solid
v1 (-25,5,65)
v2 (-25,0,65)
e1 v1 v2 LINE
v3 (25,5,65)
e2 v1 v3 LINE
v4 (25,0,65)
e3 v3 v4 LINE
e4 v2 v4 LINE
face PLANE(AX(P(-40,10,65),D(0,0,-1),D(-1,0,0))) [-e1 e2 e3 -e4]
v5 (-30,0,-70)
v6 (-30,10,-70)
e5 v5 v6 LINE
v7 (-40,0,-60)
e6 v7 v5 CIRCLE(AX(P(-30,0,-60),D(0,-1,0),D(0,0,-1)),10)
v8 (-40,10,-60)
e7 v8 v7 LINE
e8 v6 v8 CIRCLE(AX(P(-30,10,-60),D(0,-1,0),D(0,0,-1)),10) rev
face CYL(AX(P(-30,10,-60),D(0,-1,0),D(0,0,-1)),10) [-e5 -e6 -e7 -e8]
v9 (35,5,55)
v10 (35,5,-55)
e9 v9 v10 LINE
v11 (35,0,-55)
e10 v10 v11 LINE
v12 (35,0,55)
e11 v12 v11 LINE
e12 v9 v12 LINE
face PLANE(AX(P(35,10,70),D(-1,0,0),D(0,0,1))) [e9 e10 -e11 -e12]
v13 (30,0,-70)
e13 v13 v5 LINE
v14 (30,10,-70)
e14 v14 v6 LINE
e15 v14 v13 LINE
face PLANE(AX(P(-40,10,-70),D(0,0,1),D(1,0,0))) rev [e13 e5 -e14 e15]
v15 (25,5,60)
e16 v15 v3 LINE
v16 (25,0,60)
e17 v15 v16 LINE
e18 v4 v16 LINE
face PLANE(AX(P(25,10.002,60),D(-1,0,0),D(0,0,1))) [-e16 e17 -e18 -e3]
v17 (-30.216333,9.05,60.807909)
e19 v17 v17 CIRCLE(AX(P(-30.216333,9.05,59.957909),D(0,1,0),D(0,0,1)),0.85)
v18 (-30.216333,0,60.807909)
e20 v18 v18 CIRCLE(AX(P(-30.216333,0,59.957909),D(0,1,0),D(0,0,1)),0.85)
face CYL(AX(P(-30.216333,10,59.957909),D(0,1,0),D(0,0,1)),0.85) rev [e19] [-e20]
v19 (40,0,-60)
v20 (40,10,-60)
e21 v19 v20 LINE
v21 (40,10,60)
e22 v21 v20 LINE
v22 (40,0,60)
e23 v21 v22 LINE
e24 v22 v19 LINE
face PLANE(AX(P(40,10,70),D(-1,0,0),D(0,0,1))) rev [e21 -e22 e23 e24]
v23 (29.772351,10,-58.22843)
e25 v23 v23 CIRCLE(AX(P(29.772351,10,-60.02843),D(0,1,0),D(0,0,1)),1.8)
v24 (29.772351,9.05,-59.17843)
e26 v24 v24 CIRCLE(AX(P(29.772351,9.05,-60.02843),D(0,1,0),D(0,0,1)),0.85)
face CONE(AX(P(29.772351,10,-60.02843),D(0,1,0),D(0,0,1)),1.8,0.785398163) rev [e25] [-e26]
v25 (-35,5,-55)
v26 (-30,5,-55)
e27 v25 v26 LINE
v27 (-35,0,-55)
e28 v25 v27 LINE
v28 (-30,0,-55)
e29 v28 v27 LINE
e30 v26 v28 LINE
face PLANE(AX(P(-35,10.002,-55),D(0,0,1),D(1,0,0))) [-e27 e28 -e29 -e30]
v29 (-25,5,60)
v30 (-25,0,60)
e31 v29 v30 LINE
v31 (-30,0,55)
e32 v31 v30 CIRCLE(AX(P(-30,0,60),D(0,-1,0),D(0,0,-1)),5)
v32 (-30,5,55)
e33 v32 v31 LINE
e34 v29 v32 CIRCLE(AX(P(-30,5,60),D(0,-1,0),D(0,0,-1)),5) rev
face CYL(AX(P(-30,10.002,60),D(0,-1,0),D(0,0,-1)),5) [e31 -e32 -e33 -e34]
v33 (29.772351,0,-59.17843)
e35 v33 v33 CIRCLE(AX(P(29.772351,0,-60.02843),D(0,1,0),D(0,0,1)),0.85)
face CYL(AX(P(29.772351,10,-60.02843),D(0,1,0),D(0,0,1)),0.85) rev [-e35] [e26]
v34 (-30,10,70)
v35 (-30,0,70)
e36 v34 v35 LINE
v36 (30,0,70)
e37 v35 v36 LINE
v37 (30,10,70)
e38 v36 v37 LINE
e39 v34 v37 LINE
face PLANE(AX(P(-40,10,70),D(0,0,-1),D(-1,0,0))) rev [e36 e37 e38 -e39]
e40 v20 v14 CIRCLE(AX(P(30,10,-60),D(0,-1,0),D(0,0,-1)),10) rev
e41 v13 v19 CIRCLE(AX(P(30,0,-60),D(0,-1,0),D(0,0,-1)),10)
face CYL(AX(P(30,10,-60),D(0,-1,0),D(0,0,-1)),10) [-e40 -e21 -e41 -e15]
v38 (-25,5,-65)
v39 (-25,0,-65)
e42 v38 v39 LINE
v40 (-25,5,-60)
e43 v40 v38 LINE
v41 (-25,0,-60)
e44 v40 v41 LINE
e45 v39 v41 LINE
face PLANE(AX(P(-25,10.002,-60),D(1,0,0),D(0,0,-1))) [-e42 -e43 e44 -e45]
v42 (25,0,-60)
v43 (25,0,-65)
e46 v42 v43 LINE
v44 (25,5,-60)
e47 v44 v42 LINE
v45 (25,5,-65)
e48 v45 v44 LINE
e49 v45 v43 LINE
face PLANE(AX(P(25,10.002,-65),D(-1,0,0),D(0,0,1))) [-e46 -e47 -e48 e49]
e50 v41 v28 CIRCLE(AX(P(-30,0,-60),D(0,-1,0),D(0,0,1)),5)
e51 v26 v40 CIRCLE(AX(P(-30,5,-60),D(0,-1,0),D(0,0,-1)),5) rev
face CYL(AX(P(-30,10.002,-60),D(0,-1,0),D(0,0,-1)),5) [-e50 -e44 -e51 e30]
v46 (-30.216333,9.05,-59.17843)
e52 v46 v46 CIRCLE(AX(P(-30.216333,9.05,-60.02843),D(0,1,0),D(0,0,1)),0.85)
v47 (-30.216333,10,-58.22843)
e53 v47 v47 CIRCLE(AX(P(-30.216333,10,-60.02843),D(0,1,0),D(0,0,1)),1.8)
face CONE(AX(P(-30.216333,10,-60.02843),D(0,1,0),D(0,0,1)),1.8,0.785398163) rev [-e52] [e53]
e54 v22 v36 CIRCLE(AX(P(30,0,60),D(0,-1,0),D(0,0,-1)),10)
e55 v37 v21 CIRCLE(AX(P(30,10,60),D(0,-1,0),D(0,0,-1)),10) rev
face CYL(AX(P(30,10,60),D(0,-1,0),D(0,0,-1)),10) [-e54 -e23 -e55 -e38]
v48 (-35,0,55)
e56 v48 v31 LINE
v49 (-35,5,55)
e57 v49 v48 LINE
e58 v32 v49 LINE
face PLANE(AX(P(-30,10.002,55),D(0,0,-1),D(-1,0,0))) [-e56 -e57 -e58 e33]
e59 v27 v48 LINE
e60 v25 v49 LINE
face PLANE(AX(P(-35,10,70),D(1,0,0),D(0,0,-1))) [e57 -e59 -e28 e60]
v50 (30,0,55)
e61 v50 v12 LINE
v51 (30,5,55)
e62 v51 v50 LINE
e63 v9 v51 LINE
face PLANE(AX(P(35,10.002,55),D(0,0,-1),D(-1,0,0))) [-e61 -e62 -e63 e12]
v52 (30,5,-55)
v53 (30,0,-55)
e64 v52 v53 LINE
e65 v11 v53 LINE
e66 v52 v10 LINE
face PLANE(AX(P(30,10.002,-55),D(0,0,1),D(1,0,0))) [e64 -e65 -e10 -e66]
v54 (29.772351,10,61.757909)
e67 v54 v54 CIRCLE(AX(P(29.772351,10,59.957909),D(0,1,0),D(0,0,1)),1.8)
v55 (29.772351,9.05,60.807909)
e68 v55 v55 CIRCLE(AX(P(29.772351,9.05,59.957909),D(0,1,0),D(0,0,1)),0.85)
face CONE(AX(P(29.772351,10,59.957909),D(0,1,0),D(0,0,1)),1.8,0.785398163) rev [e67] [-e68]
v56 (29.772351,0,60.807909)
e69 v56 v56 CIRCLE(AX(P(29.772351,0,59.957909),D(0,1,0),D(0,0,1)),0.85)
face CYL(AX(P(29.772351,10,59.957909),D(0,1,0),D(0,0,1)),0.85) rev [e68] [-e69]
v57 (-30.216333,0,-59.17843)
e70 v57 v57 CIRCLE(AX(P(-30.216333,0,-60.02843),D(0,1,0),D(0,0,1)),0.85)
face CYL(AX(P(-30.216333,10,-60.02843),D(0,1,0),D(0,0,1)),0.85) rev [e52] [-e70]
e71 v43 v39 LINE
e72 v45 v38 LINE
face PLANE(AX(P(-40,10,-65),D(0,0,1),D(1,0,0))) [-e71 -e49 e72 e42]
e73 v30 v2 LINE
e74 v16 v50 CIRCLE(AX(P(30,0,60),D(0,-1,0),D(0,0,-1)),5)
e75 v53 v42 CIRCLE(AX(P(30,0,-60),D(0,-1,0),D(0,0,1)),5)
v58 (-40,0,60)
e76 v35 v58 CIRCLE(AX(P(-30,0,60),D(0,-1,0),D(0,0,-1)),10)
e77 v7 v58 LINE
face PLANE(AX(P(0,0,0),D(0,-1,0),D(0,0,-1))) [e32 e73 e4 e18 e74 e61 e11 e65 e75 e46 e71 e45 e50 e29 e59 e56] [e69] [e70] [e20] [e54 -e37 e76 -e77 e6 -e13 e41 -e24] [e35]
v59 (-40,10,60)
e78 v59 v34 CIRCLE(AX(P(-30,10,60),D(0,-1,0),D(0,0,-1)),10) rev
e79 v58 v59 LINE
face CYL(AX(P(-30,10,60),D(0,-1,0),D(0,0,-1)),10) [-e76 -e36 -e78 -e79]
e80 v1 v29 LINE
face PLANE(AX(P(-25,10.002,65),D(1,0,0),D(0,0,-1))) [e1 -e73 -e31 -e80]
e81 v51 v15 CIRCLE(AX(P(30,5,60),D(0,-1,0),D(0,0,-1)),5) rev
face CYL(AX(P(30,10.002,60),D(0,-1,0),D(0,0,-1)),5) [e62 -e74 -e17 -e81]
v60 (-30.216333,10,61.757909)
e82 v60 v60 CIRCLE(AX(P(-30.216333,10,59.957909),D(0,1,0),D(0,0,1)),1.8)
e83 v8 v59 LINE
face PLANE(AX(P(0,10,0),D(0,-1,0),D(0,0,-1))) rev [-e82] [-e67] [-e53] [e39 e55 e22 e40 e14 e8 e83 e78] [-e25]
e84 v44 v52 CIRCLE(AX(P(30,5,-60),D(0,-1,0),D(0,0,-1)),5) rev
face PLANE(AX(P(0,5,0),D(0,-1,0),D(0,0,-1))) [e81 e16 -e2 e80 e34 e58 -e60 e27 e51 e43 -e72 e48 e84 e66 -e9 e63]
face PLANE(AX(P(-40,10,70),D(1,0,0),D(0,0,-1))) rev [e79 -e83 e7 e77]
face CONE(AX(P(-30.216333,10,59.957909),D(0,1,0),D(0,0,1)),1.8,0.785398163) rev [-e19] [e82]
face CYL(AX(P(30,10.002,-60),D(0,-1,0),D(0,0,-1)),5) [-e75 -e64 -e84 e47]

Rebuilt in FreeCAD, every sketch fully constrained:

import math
import FreeCAD as App
import Part
import Sketcher


def edges_at(feature, points):
    """Names of the edges that pass closest to the given points."""
    edges = feature.Shape.Edges
    near = lambda p: min(range(len(edges)), key=lambda i: edges[i].distToShape(Part.Vertex(*p))[0])
    return sorted({f"Edge{near(p) + 1}" for p in points})


def faces_at(feature, points):
    """Names of the faces that lie closest to the given points."""
    faces = feature.Shape.Faces
    near = lambda p: min(range(len(faces)), key=lambda i: faces[i].distToShape(Part.Vertex(*p))[0])
    return sorted({f"Face{near(p) + 1}" for p in points})


def add_polygon(sketch, points):
    """Adds a closed chain of lines whose ends are joined by coincident constraints."""
    first, n = sketch.GeometryCount, len(points)
    for a, b in zip(points, points[1:] + points[:1]):
        sketch.addGeometry(Part.LineSegment(App.Vector(*a, 0), App.Vector(*b, 0)), False)
    for i in range(n):
        sketch.addConstraint(Sketcher.Constraint("Coincident", first + i, 2, first + (i + 1) % n, 1))

doc = App.newDocument("Part")
body = doc.addObject("PartDesign::Body", "Body")

# Sketch on XZ plane
sketch1 = body.newObject("Sketcher::SketchObject", "Sketch")
sketch1.AttachmentSupport = (doc.getObject("XZ_Plane"), [""])
sketch1.MapMode = "FlatFace"
add_polygon(sketch1, [(-40, -70), (-40, 70), (40, 70), (40, -70)])  # lines 0-3
sketch1.addConstraint([
    Sketcher.Constraint("Vertical", 0),
    Sketcher.Constraint("Horizontal", 1),
    Sketcher.Constraint("Vertical", 2),
    Sketcher.Constraint("Horizontal", 3),
    Sketcher.Constraint("Symmetric", 0, 2, 2, 2, -1, 1),
    Sketcher.Constraint("DistanceX", 1, 1, 1, 2, 80.0),
    Sketcher.Constraint("DistanceY", 0, 1, 0, 2, 140.0),
])
pad1 = body.newObject("PartDesign::Pad", "Pad")
pad1.Profile = sketch1
pad1.Length = 10
pad1.Reversed = True
doc.recompute()

thickness = body.newObject("PartDesign::Thickness", "Thickness")
thickness.Base = (pad1, faces_at(pad1, [(0, 0, 0)]))
thickness.Value = 5
thickness.Reversed = True
thickness.Join = "Intersection"

# Sketch on XZ plane
sketch2 = body.newObject("Sketcher::SketchObject", "Sketch001")
sketch2.AttachmentSupport = (doc.getObject("XZ_Plane"), [""])
sketch2.MapMode = "FlatFace"
sketch2.addGeometry([
    Part.LineSegment(App.Vector(-35, 55, 0), App.Vector(-30, 55, 0)),  # 0
    Part.ArcOfCircle(Part.Circle(App.Vector(-30, 60, 0), App.Vector(0, 0, 1), 5), math.radians(-90), math.radians(0)),  # 1
    Part.LineSegment(App.Vector(-25, 60, 0), App.Vector(-25, 65, 0)),  # 2
    Part.LineSegment(App.Vector(-25, 65, 0), App.Vector(-35, 65, 0)),  # 3
    Part.LineSegment(App.Vector(-35, 65, 0), App.Vector(-35, 55, 0)),  # 4
], False)
sketch2.addConstraint([
    Sketcher.Constraint("Tangent", 0, 2, 1, 1),
    Sketcher.Constraint("Tangent", 1, 2, 2, 1),
    Sketcher.Constraint("Coincident", 2, 2, 3, 1),
    Sketcher.Constraint("Coincident", 3, 2, 4, 1),
    Sketcher.Constraint("Coincident", 4, 2, 0, 1),
    Sketcher.Constraint("Horizontal", 0),
    Sketcher.Constraint("Vertical", 2),
    Sketcher.Constraint("Horizontal", 3),
    Sketcher.Constraint("Vertical", 4),
    Sketcher.Constraint("Equal", 0, 2),
    Sketcher.Constraint("Radius", 1, 5.0),
    Sketcher.Constraint("DistanceX", 0, 1, 0, 2, 5.0),
    Sketcher.Constraint("DistanceX", 1, 3, -1, 1, 30.0),
    Sketcher.Constraint("DistanceY", -1, 1, 1, 3, 60.0),
])
pad2 = body.newObject("PartDesign::Pad", "Pad001")
pad2.Profile = sketch2
pad2.Type = "UpToFirst"
pad2.Reversed = True

# Sketch on XZ plane
sketch3 = body.newObject("Sketcher::SketchObject", "Sketch002")
sketch3.AttachmentSupport = (doc.getObject("XZ_Plane"), [""])
sketch3.MapMode = "FlatFace"
sketch3.addGeometry([
    Part.LineSegment(App.Vector(25, 65, 0), App.Vector(25, 60, 0)),  # 0
    Part.ArcOfCircle(Part.Circle(App.Vector(30, 60, 0), App.Vector(0, 0, 1), 5), math.radians(180), math.radians(270)),  # 1
    Part.LineSegment(App.Vector(30, 55, 0), App.Vector(35, 55, 0)),  # 2
    Part.LineSegment(App.Vector(35, 55, 0), App.Vector(35, 65, 0)),  # 3
    Part.LineSegment(App.Vector(35, 65, 0), App.Vector(25, 65, 0)),  # 4
], False)
sketch3.addConstraint([
    Sketcher.Constraint("Tangent", 0, 2, 1, 1),
    Sketcher.Constraint("Tangent", 1, 2, 2, 1),
    Sketcher.Constraint("Coincident", 2, 2, 3, 1),
    Sketcher.Constraint("Coincident", 3, 2, 4, 1),
    Sketcher.Constraint("Coincident", 4, 2, 0, 1),
    Sketcher.Constraint("Vertical", 0),
    Sketcher.Constraint("Horizontal", 2),
    Sketcher.Constraint("Vertical", 3),
    Sketcher.Constraint("Horizontal", 4),
    Sketcher.Constraint("Equal", 2, 0),
    Sketcher.Constraint("Radius", 1, 5.0),
    Sketcher.Constraint("DistanceX", 2, 1, 2, 2, 5.0),
    Sketcher.Constraint("DistanceX", -1, 1, 1, 3, 30.0),
    Sketcher.Constraint("DistanceY", -1, 1, 1, 3, 60.0),
])
pad3 = body.newObject("PartDesign::Pad", "Pad002")
pad3.Profile = sketch3
pad3.Type = "UpToFirst"
pad3.Reversed = True

# Sketch on XZ plane
sketch4 = body.newObject("Sketcher::SketchObject", "Sketch003")
sketch4.AttachmentSupport = (doc.getObject("XZ_Plane"), [""])
sketch4.MapMode = "FlatFace"
sketch4.addGeometry([
    Part.LineSegment(App.Vector(35, -55, 0), App.Vector(30, -55, 0)),  # 0
    Part.ArcOfCircle(Part.Circle(App.Vector(30, -60, 0), App.Vector(0, 0, 1), 5), math.radians(90), math.radians(180)),  # 1
    Part.LineSegment(App.Vector(25, -60, 0), App.Vector(25, -65, 0)),  # 2
    Part.LineSegment(App.Vector(25, -65, 0), App.Vector(35, -65, 0)),  # 3
    Part.LineSegment(App.Vector(35, -65, 0), App.Vector(35, -55, 0)),  # 4
], False)
sketch4.addConstraint([
    Sketcher.Constraint("Tangent", 0, 2, 1, 1),
    Sketcher.Constraint("Tangent", 1, 2, 2, 1),
    Sketcher.Constraint("Coincident", 2, 2, 3, 1),
    Sketcher.Constraint("Coincident", 3, 2, 4, 1),
    Sketcher.Constraint("Coincident", 4, 2, 0, 1),
    Sketcher.Constraint("Horizontal", 0),
    Sketcher.Constraint("Vertical", 2),
    Sketcher.Constraint("Horizontal", 3),
    Sketcher.Constraint("Vertical", 4),
    Sketcher.Constraint("Equal", 0, 2),
    Sketcher.Constraint("Radius", 1, 5.0),
    Sketcher.Constraint("DistanceX", 0, 2, 0, 1, 5.0),
    Sketcher.Constraint("DistanceX", -1, 1, 1, 3, 30.0),
    Sketcher.Constraint("DistanceY", 1, 3, -1, 1, 60.0),
])
pad4 = body.newObject("PartDesign::Pad", "Pad003")
pad4.Profile = sketch4
pad4.Type = "UpToFirst"
pad4.Reversed = True

# Sketch on XZ plane
sketch5 = body.newObject("Sketcher::SketchObject", "Sketch004")
sketch5.AttachmentSupport = (doc.getObject("XZ_Plane"), [""])
sketch5.MapMode = "FlatFace"
sketch5.addGeometry([
    Part.LineSegment(App.Vector(-25, -65, 0), App.Vector(-25, -60, 0)),  # 0
    Part.ArcOfCircle(Part.Circle(App.Vector(-30, -60, 0), App.Vector(0, 0, 1), 5), math.radians(0), math.radians(90)),  # 1
    Part.LineSegment(App.Vector(-30, -55, 0), App.Vector(-35, -55, 0)),  # 2
    Part.LineSegment(App.Vector(-35, -55, 0), App.Vector(-35, -65, 0)),  # 3
    Part.LineSegment(App.Vector(-35, -65, 0), App.Vector(-25, -65, 0)),  # 4
], False)
sketch5.addConstraint([
    Sketcher.Constraint("Tangent", 0, 2, 1, 1),
    Sketcher.Constraint("Tangent", 1, 2, 2, 1),
    Sketcher.Constraint("Coincident", 2, 2, 3, 1),
    Sketcher.Constraint("Coincident", 3, 2, 4, 1),
    Sketcher.Constraint("Coincident", 4, 2, 0, 1),
    Sketcher.Constraint("Vertical", 0),
    Sketcher.Constraint("Horizontal", 2),
    Sketcher.Constraint("Vertical", 3),
    Sketcher.Constraint("Horizontal", 4),
    Sketcher.Constraint("Equal", 2, 0),
    Sketcher.Constraint("Radius", 1, 5.0),
    Sketcher.Constraint("DistanceX", 2, 2, 2, 1, 5.0),
    Sketcher.Constraint("DistanceX", 1, 3, -1, 1, 30.0),
    Sketcher.Constraint("DistanceY", 1, 3, -1, 1, 60.0),
])
pad5 = body.newObject("PartDesign::Pad", "Pad004")
pad5.Profile = sketch5
pad5.Type = "UpToFirst"
pad5.Reversed = True
doc.recompute()

fillet = body.newObject("PartDesign::Fillet", "Fillet")
fillet.Base = (pad5, edges_at(pad5, [
    (40, 5, 70),
    (-40, 5, 70),
    (-40, 5, -70),
    (40, 5, -70),
]))
fillet.Radius = 10

# Sketch on XZ plane
sketch6 = body.newObject("Sketcher::SketchObject", "Sketch005")
sketch6.AttachmentSupport = (doc.getObject("XZ_Plane"), [""])
sketch6.MapMode = "FlatFace"
sketch6.AttachmentOffset = App.Placement(App.Vector(0, 0, -10), App.Rotation())
sketch6.addGeometry([
    Part.Circle(App.Vector(-30.2, -60, 0), App.Vector(0, 0, 1), 0.8),
    Part.Circle(App.Vector(29.8, -60, 0), App.Vector(0, 0, 1), 0.8),
    Part.Circle(App.Vector(29.8, 60, 0), App.Vector(0, 0, 1), 0.8),
    Part.Circle(App.Vector(-30.2, 60, 0), App.Vector(0, 0, 1), 0.8),
], False)
sketch6.addConstraint([
    Sketcher.Constraint("Equal", 0, 1),
    Sketcher.Constraint("Equal", 1, 2),
    Sketcher.Constraint("Equal", 2, 3),
    Sketcher.Constraint("Horizontal", 0, 3, 1, 3),
    Sketcher.Constraint("Horizontal", 2, 3, 3, 3),
    Sketcher.Constraint("Vertical", 1, 3, 2, 3),
    Sketcher.Constraint("Vertical", 0, 3, 3, 3),
    Sketcher.Constraint("Diameter", 0, 1.7),
    Sketcher.Constraint("DistanceY", 0, 3, -1, 1, 60.02843),
    Sketcher.Constraint("DistanceX", -1, 1, 1, 3, 29.772351),
    Sketcher.Constraint("DistanceY", -1, 1, 2, 3, 59.957909),
    Sketcher.Constraint("DistanceX", 0, 3, -1, 1, 30.216333),
])
doc.recompute()
hole = body.newObject("PartDesign::Hole", "Hole")
hole.Profile = sketch6
hole.ThreadType = "None"
hole.Diameter = 1.7
hole.DepthType = "ThroughAll"
hole.HoleCutType = "Countersink"
hole.HoleCutDiameter = 3.6
hole.HoleCutCountersinkAngle = 90
hole.Reversed = True

doc.recompute()
